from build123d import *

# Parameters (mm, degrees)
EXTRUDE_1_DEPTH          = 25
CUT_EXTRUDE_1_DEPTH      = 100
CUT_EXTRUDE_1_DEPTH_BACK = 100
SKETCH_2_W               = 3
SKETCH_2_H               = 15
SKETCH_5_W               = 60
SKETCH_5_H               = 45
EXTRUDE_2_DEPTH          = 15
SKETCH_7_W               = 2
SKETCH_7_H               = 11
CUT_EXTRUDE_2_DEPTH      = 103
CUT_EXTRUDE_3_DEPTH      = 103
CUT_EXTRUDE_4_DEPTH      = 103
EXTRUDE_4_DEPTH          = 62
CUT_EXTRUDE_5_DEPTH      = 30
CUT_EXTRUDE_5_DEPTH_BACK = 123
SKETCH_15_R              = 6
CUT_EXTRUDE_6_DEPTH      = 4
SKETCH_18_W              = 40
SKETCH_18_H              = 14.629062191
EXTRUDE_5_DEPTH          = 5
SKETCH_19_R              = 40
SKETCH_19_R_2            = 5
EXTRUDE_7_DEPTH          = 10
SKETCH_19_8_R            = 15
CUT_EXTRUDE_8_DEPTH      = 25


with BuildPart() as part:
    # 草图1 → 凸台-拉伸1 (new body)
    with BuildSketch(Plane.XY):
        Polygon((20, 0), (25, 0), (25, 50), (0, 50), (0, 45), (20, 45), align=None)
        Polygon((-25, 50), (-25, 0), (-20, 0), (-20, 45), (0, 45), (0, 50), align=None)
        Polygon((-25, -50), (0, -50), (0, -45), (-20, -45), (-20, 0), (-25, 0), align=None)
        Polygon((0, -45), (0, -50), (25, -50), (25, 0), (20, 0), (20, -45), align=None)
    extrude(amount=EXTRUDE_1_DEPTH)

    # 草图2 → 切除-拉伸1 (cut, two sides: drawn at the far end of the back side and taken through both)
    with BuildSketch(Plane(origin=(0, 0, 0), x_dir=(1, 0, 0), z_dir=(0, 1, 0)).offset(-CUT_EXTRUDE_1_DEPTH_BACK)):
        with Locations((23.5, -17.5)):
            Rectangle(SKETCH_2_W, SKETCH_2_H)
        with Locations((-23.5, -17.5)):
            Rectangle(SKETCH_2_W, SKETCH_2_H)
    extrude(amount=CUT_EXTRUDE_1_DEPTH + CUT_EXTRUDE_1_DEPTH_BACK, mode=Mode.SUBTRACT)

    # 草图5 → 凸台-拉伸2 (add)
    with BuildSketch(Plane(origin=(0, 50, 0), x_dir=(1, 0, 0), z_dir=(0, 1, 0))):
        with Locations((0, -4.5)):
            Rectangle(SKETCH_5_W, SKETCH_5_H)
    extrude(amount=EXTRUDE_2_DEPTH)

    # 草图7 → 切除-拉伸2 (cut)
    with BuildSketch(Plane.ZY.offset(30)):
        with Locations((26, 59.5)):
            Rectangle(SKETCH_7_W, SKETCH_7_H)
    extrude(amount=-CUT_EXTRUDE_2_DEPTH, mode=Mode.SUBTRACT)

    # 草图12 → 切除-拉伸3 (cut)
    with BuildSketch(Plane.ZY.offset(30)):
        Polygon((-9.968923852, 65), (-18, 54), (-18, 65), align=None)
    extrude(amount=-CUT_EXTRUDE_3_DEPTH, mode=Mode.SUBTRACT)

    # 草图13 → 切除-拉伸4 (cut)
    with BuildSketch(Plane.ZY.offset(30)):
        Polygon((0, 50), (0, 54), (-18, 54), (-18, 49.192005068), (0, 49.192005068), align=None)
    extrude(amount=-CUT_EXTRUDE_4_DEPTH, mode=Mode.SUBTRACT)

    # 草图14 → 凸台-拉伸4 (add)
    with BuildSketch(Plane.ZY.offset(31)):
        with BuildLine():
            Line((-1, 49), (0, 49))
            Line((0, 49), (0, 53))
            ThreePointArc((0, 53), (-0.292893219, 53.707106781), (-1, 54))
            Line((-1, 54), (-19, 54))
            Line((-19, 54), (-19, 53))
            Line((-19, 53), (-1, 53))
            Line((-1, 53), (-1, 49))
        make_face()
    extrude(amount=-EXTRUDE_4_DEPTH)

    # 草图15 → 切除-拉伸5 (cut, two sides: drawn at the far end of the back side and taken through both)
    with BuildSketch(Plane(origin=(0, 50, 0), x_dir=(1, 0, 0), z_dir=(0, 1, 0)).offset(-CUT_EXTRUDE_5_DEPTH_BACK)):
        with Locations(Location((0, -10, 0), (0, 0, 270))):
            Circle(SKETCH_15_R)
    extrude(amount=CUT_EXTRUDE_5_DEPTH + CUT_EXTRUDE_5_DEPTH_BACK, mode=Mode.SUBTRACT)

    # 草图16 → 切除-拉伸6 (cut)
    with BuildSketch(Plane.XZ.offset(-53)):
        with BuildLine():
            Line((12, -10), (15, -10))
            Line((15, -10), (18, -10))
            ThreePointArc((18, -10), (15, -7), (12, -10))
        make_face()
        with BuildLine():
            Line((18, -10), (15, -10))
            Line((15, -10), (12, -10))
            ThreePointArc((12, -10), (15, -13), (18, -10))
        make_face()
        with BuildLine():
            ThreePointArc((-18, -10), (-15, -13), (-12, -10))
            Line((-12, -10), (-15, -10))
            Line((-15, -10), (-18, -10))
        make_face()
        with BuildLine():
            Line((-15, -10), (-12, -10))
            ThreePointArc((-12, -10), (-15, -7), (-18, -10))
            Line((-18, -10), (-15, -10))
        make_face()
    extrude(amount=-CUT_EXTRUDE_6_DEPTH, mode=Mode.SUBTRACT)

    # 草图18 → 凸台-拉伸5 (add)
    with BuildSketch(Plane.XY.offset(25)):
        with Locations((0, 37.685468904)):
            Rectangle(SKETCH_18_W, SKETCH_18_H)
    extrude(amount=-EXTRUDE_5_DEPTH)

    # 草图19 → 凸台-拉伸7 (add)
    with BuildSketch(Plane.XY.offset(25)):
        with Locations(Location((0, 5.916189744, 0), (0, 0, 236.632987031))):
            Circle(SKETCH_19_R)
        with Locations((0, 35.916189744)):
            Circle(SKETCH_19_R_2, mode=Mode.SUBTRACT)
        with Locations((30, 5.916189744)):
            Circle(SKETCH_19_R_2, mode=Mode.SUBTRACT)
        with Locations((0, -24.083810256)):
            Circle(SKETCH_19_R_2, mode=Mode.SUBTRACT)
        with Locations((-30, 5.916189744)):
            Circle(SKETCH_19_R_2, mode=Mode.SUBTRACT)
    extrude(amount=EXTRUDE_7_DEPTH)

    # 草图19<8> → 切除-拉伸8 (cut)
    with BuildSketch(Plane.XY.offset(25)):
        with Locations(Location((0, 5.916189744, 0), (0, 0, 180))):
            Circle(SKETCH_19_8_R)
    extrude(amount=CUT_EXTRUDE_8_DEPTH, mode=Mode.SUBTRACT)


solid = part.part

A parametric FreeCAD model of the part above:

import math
import FreeCAD as App
import Part
import Sketcher
from FreeCAD import Vector
Q = App.Units.Quantity


def add_polygon(sketch, points):
    """Adds a closed chain of lines whose ends are joined by coincident constraints."""
    first, n = sketch.GeometryCount, len(points)
    for a, b in zip(points, points[1:] + points[:1]):
        sketch.addGeometry(Part.LineSegment(App.Vector(*a, 0), App.Vector(*b, 0)), False)
    for i in range(n):
        sketch.addConstraint(Sketcher.Constraint("Coincident", first + i, 2, first + (i + 1) % n, 1))

doc = App.newDocument("Part")
params = doc.addObject("Spreadsheet::Sheet", "Params")
for row, (alias, value) in enumerate([
    ("sketch1_width", "50 mm"),
    ("sketch1_width2", "40 mm"),
    ("sketch1_height", "100 mm"),
    ("sketch1_height2", "90 mm"),
    ("pad1_length", "25 mm"),
    ("sketch2_width", "3 mm"),
    ("sketch2_height", "15 mm"),
    ("sketch3_width", "60 mm"),
    ("sketch3_height", "45 mm"),
    ("pad2_length", "15 mm"),
    ("sketch4_width", "11 mm"),
    ("sketch4_height", "2 mm"),
    ("pocket2_length", "103 mm"),
    ("sketch5_width", "11 mm"),
    ("pocket3_length", "103 mm"),
    ("sketch6_height", "18 mm"),
    ("pocket4_length", "103 mm"),
    ("sketch7_radius", "1 mm"),
    ("sketch7_width", "4 mm"),
    ("sketch7_height", "18 mm"),
    ("pad3_length", "62 mm"),
    ("sketch8_diameter", "12 mm"),
    ("sketch9_diameter", "6 mm"),
    ("pocket6_length", "4 mm"),
    ("sketch10_width", "40 mm"),
    ("pad4_length", "5 mm"),
    ("sketch11_diameter", "80 mm"),
    ("sketch11_diameter2", "10 mm"),
    ("pad5_length", "10 mm"),
    ("sketch12_diameter", "30 mm"),
    ("pocket7_length", "25 mm"),
], start=1):
    params.set(f"A{row}", alias)
    params.set(f"B{row}", "=" + value)
    params.setAlias(f"B{row}", alias)

body = doc.addObject("PartDesign::Body", "Body")

sketch1 = doc.addObject("Sketcher::SketchObject", "Sketch")
body.addObject(sketch1)
sketch1.AttachmentSupport = (doc.XY_Plane, [""])
sketch1.MapMode = "FlatFace"
add_polygon(sketch1, [(25, 50), (-25, 50), (-25, -50), (25, -50)])
add_polygon(sketch1, [(-20, -45), (-20, 45), (20, 45), (20, -45)])
sketch1.addConstraint(Sketcher.Constraint("Horizontal", 0))
sketch1.addConstraint(Sketcher.Constraint("Vertical", 1))
sketch1.addConstraint(Sketcher.Constraint("Horizontal", 2))
sketch1.addConstraint(Sketcher.Constraint("Vertical", 3))
sketch1.addConstraint(Sketcher.Constraint("Vertical", 4))
sketch1.addConstraint(Sketcher.Constraint("Horizontal", 5))
sketch1.addConstraint(Sketcher.Constraint("Vertical", 6))
sketch1.addConstraint(Sketcher.Constraint("Horizontal", 7))
sketch1.addConstraint(Sketcher.Constraint("Symmetric", 0, 2, 2, 2, -1, 1))
sketch1.addConstraint(Sketcher.Constraint("Symmetric", 4, 2, 6, 2, -1, 1))
sketch1.addConstraint(Sketcher.Constraint("DistanceX", 0, 2, 0, 1, Q("50 mm")))
sketch1.addConstraint(Sketcher.Constraint("DistanceX", 5, 1, 5, 2, Q("40 mm")))
sketch1.addConstraint(Sketcher.Constraint("DistanceY", 1, 2, 1, 1, Q("100 mm")))
sketch1.addConstraint(Sketcher.Constraint("DistanceY", 4, 1, 4, 2, Q("90 mm")))
sketch1.setExpression("Constraints[18]", "Params.sketch1_width")
sketch1.setExpression("Constraints[19]", "Params.sketch1_width2")
sketch1.setExpression("Constraints[20]", "Params.sketch1_height")
sketch1.setExpression("Constraints[21]", "Params.sketch1_height2")
pad1 = doc.addObject("PartDesign::Pad", "Pad")
body.addObject(pad1)
pad1.Profile = sketch1
pad1.setExpression("Length", "Params.pad1_length")

sketch2 = doc.addObject("Sketcher::SketchObject", "Sketch001")
body.addObject(sketch2)
sketch2.AttachmentSupport = (doc.XZ_Plane, [""])
sketch2.MapMode = "FlatFace"
add_polygon(sketch2, [(22, 10), (22, 25), (25, 25), (25, 10)])
add_polygon(sketch2, [(-25, 10), (-25, 25), (-22, 25), (-22, 10)])
sketch2.addConstraint(Sketcher.Constraint("Vertical", 0))
sketch2.addConstraint(Sketcher.Constraint("Horizontal", 1))
sketch2.addConstraint(Sketcher.Constraint("Vertical", 2))
sketch2.addConstraint(Sketcher.Constraint("Horizontal", 3))
sketch2.addConstraint(Sketcher.Constraint("Vertical", 4))
sketch2.addConstraint(Sketcher.Constraint("Horizontal", 5))
sketch2.addConstraint(Sketcher.Constraint("Vertical", 6))
sketch2.addConstraint(Sketcher.Constraint("Horizontal", 7))
sketch2.addConstraint(Sketcher.Constraint("Symmetric", 1, 2, 4, 2, -2))
sketch2.addConstraint(Sketcher.Constraint("Symmetric", 3, 2, 6, 2, -2))
sketch2.addConstraint(Sketcher.Constraint("DistanceX", 1, 1, 1, 2, Q("3 mm")))
sketch2.addConstraint(Sketcher.Constraint("DistanceY", 0, 1, 0, 2, Q("15 mm")))
sketch2.addConstraint(Sketcher.Constraint("DistanceX", -1, 1, 0, 2, Q("22 mm")))
sketch2.addConstraint(Sketcher.Constraint("DistanceY", -1, 1, 0, 2, Q("25 mm")))
sketch2.setExpression("Constraints[18]", "Params.sketch2_width")
sketch2.setExpression("Constraints[19]", "Params.sketch2_height")
pocket1 = doc.addObject("PartDesign::Pocket", "Pocket")
body.addObject(pocket1)
pocket1.Profile = sketch2
pocket1.Type = "ThroughAll"
pocket1.Midplane = True

sketch3 = doc.addObject("Sketcher::SketchObject", "Sketch002")
body.addObject(sketch3)
sketch3.AttachmentSupport = (doc.XZ_Plane, [""])
sketch3.MapMode = "FlatFace"
sketch3.AttachmentOffset = App.Placement(Vector(0, 0, -50), App.Rotation())
add_polygon(sketch3, [(-30, -18), (-30, 27), (30, 27), (30, -18)])
sketch3.addConstraint(Sketcher.Constraint("Vertical", 0))
sketch3.addConstraint(Sketcher.Constraint("Horizontal", 1))
sketch3.addConstraint(Sketcher.Constraint("Vertical", 2))
sketch3.addConstraint(Sketcher.Constraint("Horizontal", 3))
sketch3.addConstraint(Sketcher.Constraint("DistanceX", 1, 1, 1, 2, Q("60 mm")))
sketch3.addConstraint(Sketcher.Constraint("DistanceY", 0, 1, 0, 2, Q("45 mm")))
sketch3.addConstraint(Sketcher.Constraint("DistanceX", 0, 2, -1, 1, Q("30 mm")))
sketch3.addConstraint(Sketcher.Constraint("DistanceY", -1, 1, 0, 2, Q("27 mm")))
sketch3.setExpression("Constraints[8]", "Params.sketch3_width")
sketch3.setExpression("Constraints[9]", "Params.sketch3_height")
pad2 = doc.addObject("PartDesign::Pad", "Pad001")
body.addObject(pad2)
pad2.Profile = sketch3
pad2.setExpression("Length", "Params.pad2_length")
pad2.Reversed = True

sketch4 = doc.addObject("Sketcher::SketchObject", "Sketch003")
body.addObject(sketch4)
sketch4.AttachmentSupport = (doc.YZ_Plane, [""])
sketch4.MapMode = "FlatFace"
sketch4.AttachmentOffset = App.Placement(Vector(0, 0, -30), App.Rotation())
add_polygon(sketch4, [(65, 25), (54, 25), (54, 27), (65, 27)])
sketch4.addConstraint(Sketcher.Constraint("Horizontal", 0))
sketch4.addConstraint(Sketcher.Constraint("Vertical", 1))
sketch4.addConstraint(Sketcher.Constraint("Horizontal", 2))
sketch4.addConstraint(Sketcher.Constraint("Vertical", 3))
sketch4.addConstraint(Sketcher.Constraint("DistanceX", 0, 2, 0, 1, Q("11 mm")))
sketch4.addConstraint(Sketcher.Constraint("DistanceY", 1, 1, 1, 2, Q("2 mm")))
sketch4.addConstraint(Sketcher.Constraint("DistanceX", -1, 1, 0, 2, Q("54 mm")))
sketch4.addConstraint(Sketcher.Constraint("DistanceY", -1, 1, 0, 2, Q("25 mm")))
sketch4.setExpression("Constraints[8]", "Params.sketch4_width")
sketch4.setExpression("Constraints[9]", "Params.sketch4_height")
pocket2 = doc.addObject("PartDesign::Pocket", "Pocket001")
body.addObject(pocket2)
pocket2.Profile = sketch4
pocket2.setExpression("Length", "Params.pocket2_length")
pocket2.Reversed = True

sketch5 = doc.addObject("Sketcher::SketchObject", "Sketch004")
body.addObject(sketch5)
sketch5.AttachmentSupport = (doc.YZ_Plane, [""])
sketch5.MapMode = "FlatFace"
sketch5.AttachmentOffset = App.Placement(Vector(0, 0, -30), App.Rotation())
add_polygon(sketch5, [(54, -18), (65, -9.968924), (65, -18)])
sketch5.addConstraint(Sketcher.Constraint("Vertical", 1))
sketch5.addConstraint(Sketcher.Constraint("Horizontal", 2))
sketch5.addConstraint(Sketcher.Constraint("DistanceX", 2, 2, 2, 1, Q("11 mm")))
sketch5.addConstraint(Sketcher.Constraint("DistanceX", -1, 1, 0, 2, Q("65 mm")))
sketch5.addConstraint(Sketcher.Constraint("DistanceY", 1, 2, -1, 1, Q("18 mm")))
sketch5.addConstraint(Sketcher.Constraint("Distance", 0, Q("13.619772 mm")))
sketch5.setExpression("Constraints[5]", "Params.sketch5_width")
pocket3 = doc.addObject("PartDesign::Pocket", "Pocket002")
body.addObject(pocket3)
pocket3.Profile = sketch5
pocket3.setExpression("Length", "Params.pocket3_length")
pocket3.Reversed = True

sketch6 = doc.addObject("Sketcher::SketchObject", "Sketch005")
body.addObject(sketch6)
sketch6.AttachmentSupport = (doc.YZ_Plane, [""])
sketch6.MapMode = "FlatFace"
sketch6.AttachmentOffset = App.Placement(Vector(0, 0, -30), App.Rotation())
add_polygon(sketch6, [(54, 0), (54, -18), (49.192005, -18), (49.192005, 0)])
sketch6.addConstraint(Sketcher.Constraint("Vertical", 0))
sketch6.addConstraint(Sketcher.Constraint("Horizontal", 1))
sketch6.addConstraint(Sketcher.Constraint("Vertical", 2))
sketch6.addConstraint(Sketcher.Constraint("Horizontal", 3))
sketch6.addConstraint(Sketcher.Constraint("PointOnObject", 2, 2, -1))
sketch6.addConstraint(Sketcher.Constraint("DistanceY", 0, 2, 0, 1, Q("18 mm")))
sketch6.addConstraint(Sketcher.Constraint("DistanceX", -1, 1, 0, 2, Q("54 mm")))
sketch6.addConstraint(Sketcher.Constraint("DistanceX", 1, 2, 1, 1, Q("4.807995 mm")))
sketch6.setExpression("Constraints[9]", "Params.sketch6_height")
pocket4 = doc.addObject("PartDesign::Pocket", "Pocket003")
body.addObject(pocket4)
pocket4.Profile = sketch6
pocket4.setExpression("Length", "Params.pocket4_length")
pocket4.Reversed = True

sketch7 = doc.addObject("Sketcher::SketchObject", "Sketch006")
body.addObject(sketch7)
sketch7.AttachmentSupport = (doc.YZ_Plane, [""])
sketch7.MapMode = "FlatFace"
sketch7.AttachmentOffset = App.Placement(Vector(0, 0, -31), App.Rotation())
sketch7.addGeometry(Part.LineSegment(Vector(49, -1, 0), Vector(49, 0, 0)), False)
sketch7.addGeometry(Part.LineSegment(Vector(49, 0, 0), Vector(53, 0, 0)), False)
sketch7.addGeometry(Part.ArcOfCircle(Part.Circle(Vector(53, -1, 0), Vector(0, 0, 1), 1), math.radians(0), math.radians(90)), False)
sketch7.addGeometry(Part.LineSegment(Vector(54, -1, 0), Vector(54, -19, 0)), False)
sketch7.addGeometry(Part.LineSegment(Vector(54, -19, 0), Vector(53, -19, 0)), False)
sketch7.addGeometry(Part.LineSegment(Vector(53, -19, 0), Vector(53, -1, 0)), False)
sketch7.addGeometry(Part.LineSegment(Vector(53, -1, 0), Vector(49, -1, 0)), False)
sketch7.addConstraint(Sketcher.Constraint("Coincident", 0, 2, 1, 1))
sketch7.addConstraint(Sketcher.Constraint("Tangent", 1, 2, 2, 2))
sketch7.addConstraint(Sketcher.Constraint("Tangent", 2, 1, 3, 1))
sketch7.addConstraint(Sketcher.Constraint("Coincident", 3, 2, 4, 1))
sketch7.addConstraint(Sketcher.Constraint("Coincident", 4, 2, 5, 1))
sketch7.addConstraint(Sketcher.Constraint("Coincident", 5, 2, 6, 1))
sketch7.addConstraint(Sketcher.Constraint("Coincident", 6, 2, 0, 1))
sketch7.addConstraint(Sketcher.Constraint("Vertical", 0))
sketch7.addConstraint(Sketcher.Constraint("Horizontal", 1))
sketch7.addConstraint(Sketcher.Constraint("Vertical", 3))
sketch7.addConstraint(Sketcher.Constraint("Horizontal", 4))
sketch7.addConstraint(Sketcher.Constraint("Vertical", 5))
sketch7.addConstraint(Sketcher.Constraint("Horizontal", 6))
sketch7.addConstraint(Sketcher.Constraint("Coincident", 5, 2, 2, 3))
sketch7.addConstraint(Sketcher.Constraint("PointOnObject", 0, 2, -1))
sketch7.addConstraint(Sketcher.Constraint("Radius", 2, Q("1 mm")))
sketch7.addConstraint(Sketcher.Constraint("DistanceX", 1, 1, 1, 2, Q("4 mm")))
sketch7.addConstraint(Sketcher.Constraint("DistanceY", 3, 2, 3, 1, Q("18 mm")))
sketch7.addConstraint(Sketcher.Constraint("DistanceX", -1, 1, 2, 3, Q("53 mm")))
sketch7.setExpression("Constraints[15]", "Params.sketch7_radius")
sketch7.setExpression("Constraints[16]", "Params.sketch7_width")
sketch7.setExpression("Constraints[17]", "Params.sketch7_height")
pad3 = doc.addObject("PartDesign::Pad", "Pad002")
body.addObject(pad3)
pad3.Profile = sketch7
pad3.setExpression("Length", "Params.pad3_length")

sketch8 = doc.addObject("Sketcher::SketchObject", "Sketch007")
body.addObject(sketch8)
sketch8.AttachmentSupport = (doc.XZ_Plane, [""])
sketch8.MapMode = "FlatFace"
sketch8.AttachmentOffset = App.Placement(Vector(0, 0, -50), App.Rotation())
sketch8.addGeometry(Part.Circle(Vector(0, 10, 0), Vector(0, 0, 1), 6), False)
sketch8.addConstraint(Sketcher.Constraint("PointOnObject", 0, 3, -2))
sketch8.addConstraint(Sketcher.Constraint("Diameter", 0, Q("12 mm")))
sketch8.addConstraint(Sketcher.Constraint("DistanceY", -1, 1, 0, 3, Q("10 mm")))
sketch8.setExpression("Constraints[1]", "Params.sketch8_diameter")
pocket5 = doc.addObject("PartDesign::Pocket", "Pocket004")
body.addObject(pocket5)
pocket5.Profile = sketch8
pocket5.Type = "ThroughAll"
pocket5.Midplane = True

sketch9 = doc.addObject("Sketcher::SketchObject", "Sketch008")
body.addObject(sketch9)
sketch9.AttachmentSupport = (doc.XZ_Plane, [""])
sketch9.MapMode = "FlatFace"
sketch9.AttachmentOffset = App.Placement(Vector(0, 0, -53), App.Rotation())
sketch9.addGeometry(Part.Circle(Vector(15, -10, 0), Vector(0, 0, 1), 3), False)
sketch9.addGeometry(Part.Circle(Vector(-15, -10, 0), Vector(0, 0, 1), 3), False)
sketch9.addConstraint(Sketcher.Constraint("Equal", 0, 1))
sketch9.addConstraint(Sketcher.Constraint("Symmetric", 0, 3, 1, 3, -2))
sketch9.addConstraint(Sketcher.Constraint("Diameter", 0, Q("6 mm")))
sketch9.addConstraint(Sketcher.Constraint("DistanceX", -1, 1, 0, 3, Q("15 mm")))
sketch9.addConstraint(Sketcher.Constraint("DistanceY", 0, 3, -1, 1, Q("10 mm")))
sketch9.setExpression("Constraints[2]", "Params.sketch9_diameter")
pocket6 = doc.addObject("PartDesign::Pocket", "Pocket005")
body.addObject(pocket6)
pocket6.Profile = sketch9
pocket6.setExpression("Length", "Params.pocket6_length")

sketch10 = doc.addObject("Sketcher::SketchObject", "Sketch009")
body.addObject(sketch10)
sketch10.AttachmentSupport = (doc.XY_Plane, [""])
sketch10.MapMode = "FlatFace"
sketch10.AttachmentOffset = App.Placement(Vector(0, 0, 25), App.Rotation())
add_polygon(sketch10, [(-20, 45), (-20, 30.370938), (20, 30.370938), (20, 45)])
sketch10.addConstraint(Sketcher.Constraint("Vertical", 0))
sketch10.addConstraint(Sketcher.Constraint("Horizontal", 1))
sketch10.addConstraint(Sketcher.Constraint("Vertical", 2))
sketch10.addConstraint(Sketcher.Constraint("Horizontal", 3))
sketch10.addConstraint(Sketcher.Constraint("DistanceX", 1, 1, 1, 2, Q("40 mm")))
sketch10.addConstraint(Sketcher.Constraint("DistanceX", 0, 2, -1, 1, Q("20 mm")))
sketch10.addConstraint(Sketcher.Constraint("DistanceY", -1, 1, 2, 2, Q("45 mm")))
sketch10.addConstraint(Sketcher.Constraint("DistanceY", 0, 2, 0, 1, Q("14.629062 mm")))
sketch10.setExpression("Constraints[8]", "Params.sketch10_width")
pad4 = doc.addObject("PartDesign::Pad", "Pad003")
body.addObject(pad4)
pad4.Profile = sketch10
pad4.setExpression("Length", "Params.pad4_length")
pad4.Reversed = True

sketch11 = doc.addObject("Sketcher::SketchObject", "Sketch010")
body.addObject(sketch11)
sketch11.AttachmentSupport = (doc.XY_Plane, [""])
sketch11.MapMode = "FlatFace"
sketch11.AttachmentOffset = App.Placement(Vector(0, 0, 25), App.Rotation())
sketch11.addGeometry(Part.Circle(Vector(0, 5.91619, 0), Vector(0, 0, 1), 40), False)
sketch11.addGeometry(Part.Circle(Vector(0, 35.91619, 0), Vector(0, 0, 1), 5), False)
sketch11.addGeometry(Part.Circle(Vector(-30, 5.91619, 0), Vector(0, 0, 1), 5), False)
sketch11.addGeometry(Part.Circle(Vector(30, 5.91619, 0), Vector(0, 0, 1), 5), False)
sketch11.addGeometry(Part.Circle(Vector(0, -24.08381, 0), Vector(0, 0, 1), 5), False)
sketch11.addConstraint(Sketcher.Constraint("Equal", 1, 2))
sketch11.addConstraint(Sketcher.Constraint("Equal", 2, 3))
sketch11.addConstraint(Sketcher.Constraint("Equal", 3, 4))
sketch11.addConstraint(Sketcher.Constraint("Symmetric", 2, 3, 3, 3, -2))
sketch11.addConstraint(Sketcher.Constraint("PointOnObject", 0, 3, -2))
sketch11.addConstraint(Sketcher.Constraint("PointOnObject", 1, 3, -2))
sketch11.addConstraint(Sketcher.Constraint("PointOnObject", 4, 3, -2))
sketch11.addConstraint(Sketcher.Constraint("Horizontal", 0, 3, 2, 3))
sketch11.addConstraint(Sketcher.Constraint("Diameter", 0, Q("80 mm")))
sketch11.addConstraint(Sketcher.Constraint("Diameter", 1, Q("10 mm")))
sketch11.addConstraint(Sketcher.Constraint("DistanceX", 2, 3, -1, 1, Q("30 mm")))
sketch11.addConstraint(Sketcher.Constraint("DistanceY", 0, 3, 1, 3, Q("30 mm")))
sketch11.addConstraint(Sketcher.Constraint("DistanceY", 4, 3, 0, 3, Q("30 mm")))
sketch11.addConstraint(Sketcher.Constraint("DistanceY", -1, 1, 0, 3, Q("5.91619 mm")))
sketch11.setExpression("Constraints[8]", "Params.sketch11_diameter")
sketch11.setExpression("Constraints[9]", "Params.sketch11_diameter2")
pad5 = doc.addObject("PartDesign::Pad", "Pad004")
body.addObject(pad5)
pad5.Profile = sketch11
pad5.setExpression("Length", "Params.pad5_length")

sketch12 = doc.addObject("Sketcher::SketchObject", "Sketch011")
body.addObject(sketch12)
sketch12.AttachmentSupport = (doc.XY_Plane, [""])
sketch12.MapMode = "FlatFace"
sketch12.AttachmentOffset = App.Placement(Vector(0, 0, 25), App.Rotation())
sketch12.addGeometry(Part.Circle(Vector(0, 5.91619, 0), Vector(0, 0, 1), 15), False)
sketch12.addConstraint(Sketcher.Constraint("PointOnObject", 0, 3, -2))
sketch12.addConstraint(Sketcher.Constraint("Diameter", 0, Q("30 mm")))
sketch12.addConstraint(Sketcher.Constraint("DistanceY", -1, 1, 0, 3, Q("5.91619 mm")))
sketch12.setExpression("Constraints[1]", "Params.sketch12_diameter")
pocket7 = doc.addObject("PartDesign::Pocket", "Pocket006")
body.addObject(pocket7)
pocket7.Profile = sketch12
pocket7.setExpression("Length", "Params.pocket7_length")
pocket7.Reversed = True

doc.recompute()
